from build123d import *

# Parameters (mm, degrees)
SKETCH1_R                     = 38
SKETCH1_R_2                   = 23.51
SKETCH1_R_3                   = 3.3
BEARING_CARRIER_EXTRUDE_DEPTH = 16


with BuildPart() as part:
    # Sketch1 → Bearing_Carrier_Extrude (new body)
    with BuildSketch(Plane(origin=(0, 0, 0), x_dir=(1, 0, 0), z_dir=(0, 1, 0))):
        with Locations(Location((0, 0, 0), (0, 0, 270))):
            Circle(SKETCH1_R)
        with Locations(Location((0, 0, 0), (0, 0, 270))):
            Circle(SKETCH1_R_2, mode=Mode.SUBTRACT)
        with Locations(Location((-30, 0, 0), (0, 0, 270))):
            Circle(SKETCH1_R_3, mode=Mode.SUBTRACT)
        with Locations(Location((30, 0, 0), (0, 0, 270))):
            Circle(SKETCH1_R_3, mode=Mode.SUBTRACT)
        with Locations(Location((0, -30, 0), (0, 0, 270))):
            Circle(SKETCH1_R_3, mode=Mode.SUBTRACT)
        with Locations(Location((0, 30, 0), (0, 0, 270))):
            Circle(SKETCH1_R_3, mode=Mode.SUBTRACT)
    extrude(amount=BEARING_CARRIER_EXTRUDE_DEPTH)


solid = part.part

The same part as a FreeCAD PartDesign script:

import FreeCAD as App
import Part
import Sketcher

V = App.Vector

doc = App.newDocument("Part")
params = doc.addObject("Spreadsheet::Sheet", "Params")
for row, (alias, value) in enumerate([
    ("sketch1_diameter", "76 mm"),
    ("sketch1_diameter2", "6.6 mm"),
    ("sketch1_diameter3", "47.02 mm"),
    ("pad1_length", "16 mm"),
], start=1):
    params.set(f"A{row}", alias)
    params.set(f"B{row}", "=" + value)
    params.setAlias(f"B{row}", alias)

body = doc.addObject("PartDesign::Body", "Body")

# Sketch on XZ plane
sketch1 = body.newObject("Sketcher::SketchObject", "Sketch")
sketch1.AttachmentSupport = (doc.getObject("XZ_Plane"), [""])
sketch1.MapMode = "FlatFace"
sketch1.addGeometry([
    Part.Circle(V(0, 0, 0), V(0, 0, 1), 38),  # 0
    Part.Circle(V(0, -30, 0), V(0, 0, 1), 3.3),  # 1
    Part.Circle(V(-30, 0, 0), V(0, 0, 1), 3.3),  # 2
    Part.Circle(V(0, 0, 0), V(0, 0, 1), 23.5),  # 3
    Part.Circle(V(0, 30, 0), V(0, 0, 1), 3.3),  # 4
    Part.Circle(V(30, 0, 0), V(0, 0, 1), 3.3),  # 5
], False)
sketch1.addConstraint([
    Sketcher.Constraint("Coincident", 0, 3, -1, 1),
    Sketcher.Constraint("Coincident", 3, 3, -1, 1),
    Sketcher.Constraint("Equal", 1, 2),
    Sketcher.Constraint("Equal", 2, 4),
    Sketcher.Constraint("Equal", 4, 5),
    Sketcher.Constraint("Symmetric", 1, 3, 4, 3, -1, 1),
    Sketcher.Constraint("Symmetric", 2, 3, 5, 3, -1, 1),
    Sketcher.Constraint("PointOnObject", 1, 3, -2),
    Sketcher.Constraint("PointOnObject", 2, 3, -1),
    Sketcher.Constraint("Diameter", 0, 76.0),
    Sketcher.Constraint("Diameter", 1, 6.6),
    Sketcher.Constraint("Diameter", 3, 47.02),
    Sketcher.Constraint("DistanceY", 1, 3, -1, 1, 30.0),
    Sketcher.Constraint("DistanceX", 2, 3, -1, 1, 30.0),
])
sketch1.setExpression("Constraints[9]", "Params.sketch1_diameter")
sketch1.setExpression("Constraints[10]", "Params.sketch1_diameter2")
sketch1.setExpression("Constraints[11]", "Params.sketch1_diameter3")
pad1 = body.newObject("PartDesign::Pad", "Pad")
pad1.Profile = sketch1
pad1.setExpression("Length", "Params.pad1_length")
pad1.Reversed = True

doc.recompute()
